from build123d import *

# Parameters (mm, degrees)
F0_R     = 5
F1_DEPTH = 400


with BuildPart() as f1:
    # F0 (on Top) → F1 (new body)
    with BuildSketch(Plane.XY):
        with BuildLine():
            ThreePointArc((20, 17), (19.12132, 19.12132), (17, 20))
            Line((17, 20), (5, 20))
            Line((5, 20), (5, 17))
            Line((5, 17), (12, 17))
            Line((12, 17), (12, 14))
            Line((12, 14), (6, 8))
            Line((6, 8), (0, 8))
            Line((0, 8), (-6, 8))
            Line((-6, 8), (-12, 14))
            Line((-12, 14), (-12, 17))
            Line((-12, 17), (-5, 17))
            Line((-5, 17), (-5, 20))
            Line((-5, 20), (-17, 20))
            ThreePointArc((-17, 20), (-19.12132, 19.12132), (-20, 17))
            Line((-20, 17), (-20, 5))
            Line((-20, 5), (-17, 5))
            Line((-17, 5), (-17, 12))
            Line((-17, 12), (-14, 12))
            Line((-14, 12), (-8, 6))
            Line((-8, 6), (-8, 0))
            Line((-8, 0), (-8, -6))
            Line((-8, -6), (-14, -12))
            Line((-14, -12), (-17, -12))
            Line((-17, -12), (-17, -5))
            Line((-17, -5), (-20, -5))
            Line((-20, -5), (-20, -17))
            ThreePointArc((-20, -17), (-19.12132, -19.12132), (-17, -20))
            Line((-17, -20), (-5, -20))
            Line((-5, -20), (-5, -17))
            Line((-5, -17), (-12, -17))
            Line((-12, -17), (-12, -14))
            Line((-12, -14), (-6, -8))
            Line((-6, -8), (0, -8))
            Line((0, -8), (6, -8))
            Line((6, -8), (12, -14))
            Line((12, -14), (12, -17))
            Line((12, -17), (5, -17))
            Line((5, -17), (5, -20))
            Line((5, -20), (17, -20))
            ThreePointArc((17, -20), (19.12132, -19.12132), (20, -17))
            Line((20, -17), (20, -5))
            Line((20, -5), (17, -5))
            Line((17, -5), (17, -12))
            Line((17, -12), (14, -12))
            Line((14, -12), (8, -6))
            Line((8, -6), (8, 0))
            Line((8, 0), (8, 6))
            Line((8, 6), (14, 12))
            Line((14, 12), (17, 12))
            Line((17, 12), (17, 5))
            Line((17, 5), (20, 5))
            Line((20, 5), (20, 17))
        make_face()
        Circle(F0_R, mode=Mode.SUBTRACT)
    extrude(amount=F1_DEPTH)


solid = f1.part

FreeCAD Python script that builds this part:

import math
import FreeCAD as App
import Part
import Sketcher

doc = App.newDocument("Part")
params = doc.addObject("Spreadsheet::Sheet", "Params")
for row, (alias, value) in enumerate([
    ("sketch1_diameter", "10 mm"),
    ("sketch1_radius", "3.000001 mm"),
    ("sketch1_width", "12 mm"),
    ("sketch1_width2", "7 mm"),
    ("pad1_length", "400 mm"),
], start=1):
    params.set(f"A{row}", alias)
    params.set(f"B{row}", "=" + value)
    params.setAlias(f"B{row}", alias)

body = doc.addObject("PartDesign::Body", "Body")

# Sketch on XY plane
sketch1 = body.newObject("Sketcher::SketchObject", "Sketch")
sketch1.AttachmentSupport = (doc.getObject("XY_Plane"), [""])
sketch1.MapMode = "FlatFace"
sketch1.addGeometry([
    Part.ArcOfCircle(Part.Circle(App.Vector(16.999999, 16.999999, 0), App.Vector(0, 0, 1), 3.000001), math.radians(0.000022), math.radians(89.999978)),  # 0
    Part.LineSegment(App.Vector(17, 20, 0), App.Vector(5, 20, 0)),  # 1
    Part.LineSegment(App.Vector(5, 20, 0), App.Vector(5, 17, 0)),  # 2
    Part.LineSegment(App.Vector(5, 17, 0), App.Vector(12, 17, 0)),  # 3
    Part.LineSegment(App.Vector(12, 17, 0), App.Vector(12, 14, 0)),  # 4
    Part.LineSegment(App.Vector(12, 14, 0), App.Vector(6, 8, 0)),  # 5
    Part.LineSegment(App.Vector(6, 8, 0), App.Vector(-6, 8, 0)),  # 6
    Part.LineSegment(App.Vector(-6, 8, 0), App.Vector(-12, 14, 0)),  # 7
    Part.LineSegment(App.Vector(-12, 14, 0), App.Vector(-12, 17, 0)),  # 8
    Part.LineSegment(App.Vector(-12, 17, 0), App.Vector(-5, 17, 0)),  # 9
    Part.LineSegment(App.Vector(-5, 17, 0), App.Vector(-5, 20, 0)),  # 10
    Part.LineSegment(App.Vector(-5, 20, 0), App.Vector(-17, 20, 0)),  # 11
    Part.ArcOfCircle(Part.Circle(App.Vector(-16.999999, 16.999999, 0), App.Vector(0, 0, 1), 3.000001), math.radians(90.000022), math.radians(179.999978)),  # 12
    Part.LineSegment(App.Vector(-20, 17, 0), App.Vector(-20, 5, 0)),  # 13
    Part.LineSegment(App.Vector(-20, 5, 0), App.Vector(-17, 5, 0)),  # 14
    Part.LineSegment(App.Vector(-17, 5, 0), App.Vector(-17, 12, 0)),  # 15
    Part.LineSegment(App.Vector(-17, 12, 0), App.Vector(-14, 12, 0)),  # 16
    Part.LineSegment(App.Vector(-14, 12, 0), App.Vector(-8, 6, 0)),  # 17
    Part.LineSegment(App.Vector(-8, 6, 0), App.Vector(-8, -6, 0)),  # 18
    Part.LineSegment(App.Vector(-8, -6, 0), App.Vector(-14, -12, 0)),  # 19
    Part.LineSegment(App.Vector(-14, -12, 0), App.Vector(-17, -12, 0)),  # 20
    Part.LineSegment(App.Vector(-17, -12, 0), App.Vector(-17, -5, 0)),  # 21
    Part.LineSegment(App.Vector(-17, -5, 0), App.Vector(-20, -5, 0)),  # 22
    Part.LineSegment(App.Vector(-20, -5, 0), App.Vector(-20, -17, 0)),  # 23
    Part.ArcOfCircle(Part.Circle(App.Vector(-16.999999, -16.999999, 0), App.Vector(0, 0, 1), 3.000001), math.radians(-179.999978), math.radians(-90.000022)),  # 24
    Part.LineSegment(App.Vector(-17, -20, 0), App.Vector(-5, -20, 0)),  # 25
    Part.LineSegment(App.Vector(-5, -20, 0), App.Vector(-5, -17, 0)),  # 26
    Part.LineSegment(App.Vector(-5, -17, 0), App.Vector(-12, -17, 0)),  # 27
    Part.LineSegment(App.Vector(-12, -17, 0), App.Vector(-12, -14, 0)),  # 28
    Part.LineSegment(App.Vector(-12, -14, 0), App.Vector(-6, -8, 0)),  # 29
    Part.LineSegment(App.Vector(-6, -8, 0), App.Vector(6, -8, 0)),  # 30
    Part.LineSegment(App.Vector(6, -8, 0), App.Vector(12, -14, 0)),  # 31
    Part.LineSegment(App.Vector(12, -14, 0), App.Vector(12, -17, 0)),  # 32
    Part.LineSegment(App.Vector(12, -17, 0), App.Vector(5, -17, 0)),  # 33
    Part.LineSegment(App.Vector(5, -17, 0), App.Vector(5, -20, 0)),  # 34
    Part.LineSegment(App.Vector(5, -20, 0), App.Vector(17, -20, 0)),  # 35
    Part.ArcOfCircle(Part.Circle(App.Vector(16.999999, -16.999999, 0), App.Vector(0, 0, 1), 3.000001), math.radians(-89.999978), math.radians(-0.000022)),  # 36
    Part.LineSegment(App.Vector(20, -17, 0), App.Vector(20, -5, 0)),  # 37
    Part.LineSegment(App.Vector(20, -5, 0), App.Vector(17, -5, 0)),  # 38
    Part.LineSegment(App.Vector(17, -5, 0), App.Vector(17, -12, 0)),  # 39
    Part.LineSegment(App.Vector(17, -12, 0), App.Vector(14, -12, 0)),  # 40
    Part.LineSegment(App.Vector(14, -12, 0), App.Vector(8, -6, 0)),  # 41
    Part.LineSegment(App.Vector(8, -6, 0), App.Vector(8, 6, 0)),  # 42
    Part.LineSegment(App.Vector(8, 6, 0), App.Vector(14, 12, 0)),  # 43
    Part.LineSegment(App.Vector(14, 12, 0), App.Vector(17, 12, 0)),  # 44
    Part.LineSegment(App.Vector(17, 12, 0), App.Vector(17, 5, 0)),  # 45
    Part.LineSegment(App.Vector(17, 5, 0), App.Vector(20, 5, 0)),  # 46
    Part.LineSegment(App.Vector(20, 5, 0), App.Vector(20, 17, 0)),  # 47
    Part.Circle(App.Vector(0, 0, 0), App.Vector(0, 0, 1), 5),  # 48
], False)
sketch1.addConstraint([
    Sketcher.Constraint("Tangent", 0, 2, 1, 1),
    Sketcher.Constraint("Coincident", 1, 2, 2, 1),
    Sketcher.Constraint("Coincident", 2, 2, 3, 1),
    Sketcher.Constraint("Coincident", 3, 2, 4, 1),
    Sketcher.Constraint("Coincident", 4, 2, 5, 1),
    Sketcher.Constraint("Coincident", 5, 2, 6, 1),
    Sketcher.Constraint("Coincident", 6, 2, 7, 1),
    Sketcher.Constraint("Coincident", 7, 2, 8, 1),
    Sketcher.Constraint("Coincident", 8, 2, 9, 1),
    Sketcher.Constraint("Coincident", 9, 2, 10, 1),
    Sketcher.Constraint("Coincident", 10, 2, 11, 1),
    Sketcher.Constraint("Tangent", 11, 2, 12, 1),
    Sketcher.Constraint("Tangent", 12, 2, 13, 1),
    Sketcher.Constraint("Coincident", 13, 2, 14, 1),
    Sketcher.Constraint("Coincident", 14, 2, 15, 1),
    Sketcher.Constraint("Coincident", 15, 2, 16, 1),
    Sketcher.Constraint("Coincident", 16, 2, 17, 1),
    Sketcher.Constraint("Coincident", 17, 2, 18, 1),
    Sketcher.Constraint("Coincident", 18, 2, 19, 1),
    Sketcher.Constraint("Coincident", 19, 2, 20, 1),
    Sketcher.Constraint("Coincident", 20, 2, 21, 1),
    Sketcher.Constraint("Coincident", 21, 2, 22, 1),
    Sketcher.Constraint("Coincident", 22, 2, 23, 1),
    Sketcher.Constraint("Tangent", 23, 2, 24, 1),
    Sketcher.Constraint("Tangent", 24, 2, 25, 1),
    Sketcher.Constraint("Coincident", 25, 2, 26, 1),
    Sketcher.Constraint("Coincident", 26, 2, 27, 1),
    Sketcher.Constraint("Coincident", 27, 2, 28, 1),
    Sketcher.Constraint("Coincident", 28, 2, 29, 1),
    Sketcher.Constraint("Coincident", 29, 2, 30, 1),
    Sketcher.Constraint("Coincident", 30, 2, 31, 1),
    Sketcher.Constraint("Coincident", 31, 2, 32, 1),
    Sketcher.Constraint("Coincident", 32, 2, 33, 1),
    Sketcher.Constraint("Coincident", 33, 2, 34, 1),
    Sketcher.Constraint("Coincident", 34, 2, 35, 1),
    Sketcher.Constraint("Tangent", 35, 2, 36, 1),
    Sketcher.Constraint("Tangent", 36, 2, 37, 1),
    Sketcher.Constraint("Coincident", 37, 2, 38, 1),
    Sketcher.Constraint("Coincident", 38, 2, 39, 1),
    Sketcher.Constraint("Coincident", 39, 2, 40, 1),
    Sketcher.Constraint("Coincident", 40, 2, 41, 1),
    Sketcher.Constraint("Coincident", 41, 2, 42, 1),
    Sketcher.Constraint("Coincident", 42, 2, 43, 1),
    Sketcher.Constraint("Coincident", 43, 2, 44, 1),
    Sketcher.Constraint("Coincident", 44, 2, 45, 1),
    Sketcher.Constraint("Coincident", 45, 2, 46, 1),
    Sketcher.Constraint("Coincident", 46, 2, 47, 1),
    Sketcher.Constraint("Tangent", 47, 2, 0, 1),
    Sketcher.Constraint("Horizontal", 1),
    Sketcher.Constraint("Vertical", 2),
    Sketcher.Constraint("Horizontal", 3),
    Sketcher.Constraint("Vertical", 4),
    Sketcher.Constraint("Horizontal", 6),
    Sketcher.Constraint("Vertical", 8),
    Sketcher.Constraint("Horizontal", 9),
    Sketcher.Constraint("Vertical", 10),
    Sketcher.Constraint("Horizontal", 11),
    Sketcher.Constraint("Vertical", 13),
    Sketcher.Constraint("Horizontal", 14),
    Sketcher.Constraint("Vertical", 15),
    Sketcher.Constraint("Horizontal", 16),
    Sketcher.Constraint("Vertical", 18),
    Sketcher.Constraint("Horizontal", 20),
    Sketcher.Constraint("Vertical", 21),
    Sketcher.Constraint("Horizontal", 22),
    Sketcher.Constraint("Vertical", 23),
    Sketcher.Constraint("Horizontal", 25),
    Sketcher.Constraint("Vertical", 26),
    Sketcher.Constraint("Horizontal", 27),
    Sketcher.Constraint("Vertical", 28),
    Sketcher.Constraint("Horizontal", 30),
    Sketcher.Constraint("Vertical", 32),
    Sketcher.Constraint("Horizontal", 33),
    Sketcher.Constraint("Vertical", 34),
    Sketcher.Constraint("Horizontal", 35),
    Sketcher.Constraint("Vertical", 37),
    Sketcher.Constraint("Horizontal", 38),
    Sketcher.Constraint("Vertical", 39),
    Sketcher.Constraint("Horizontal", 40),
    Sketcher.Constraint("Vertical", 42),
    Sketcher.Constraint("Horizontal", 44),
    Sketcher.Constraint("Vertical", 45),
    Sketcher.Constraint("Horizontal", 46),
    Sketcher.Constraint("Vertical", 47),
    Sketcher.Constraint("Coincident", 48, 3, -1, 1),
    Sketcher.Constraint("Equal", 0, 12),
    Sketcher.Constraint("Equal", 12, 24),
    Sketcher.Constraint("Equal", 24, 36),
    Sketcher.Constraint("Symmetric", 0, 3, 24, 3, -1, 1),
    Sketcher.Constraint("Symmetric", 12, 3, 36, 3, -1, 1),
    Sketcher.Constraint("Symmetric", 2, 2, 26, 2, -1, 1),
    Sketcher.Constraint("Symmetric", 4, 2, 28, 2, -1, 1),
    Sketcher.Constraint("Symmetric", 5, 2, 29, 2, -1, 1),
    Sketcher.Constraint("Symmetric", 7, 2, 31, 2, -1, 1),
    Sketcher.Constraint("Symmetric", 9, 2, 33, 2, -1, 1),
    Sketcher.Constraint("Symmetric", 14, 2, 38, 2, -1, 1),
    Sketcher.Constraint("Symmetric", 16, 2, 40, 2, -1, 1),
    Sketcher.Constraint("Symmetric", 17, 2, 41, 2, -1, 1),
    Sketcher.Constraint("Symmetric", 19, 2, 43, 2, -1, 1),
    Sketcher.Constraint("Symmetric", 21, 2, 45, 2, -1, 1),
    Sketcher.Constraint("Symmetric", 0, 3, 12, 3, -2),
    Sketcher.Constraint("Symmetric", 4, 2, 7, 2, -2),
    Sketcher.Constraint("Symmetric", 2, 2, 9, 2, -2),
    Sketcher.Constraint("Symmetric", 21, 2, 38, 2, -2),
    Sketcher.Constraint("Symmetric", 19, 2, 40, 2, -2),
    Sketcher.Constraint("Perpendicular", 5, 7),
    Sketcher.Constraint("Parallel", 7, 17),
    Sketcher.Constraint("Perpendicular", 17, 19),
    Sketcher.Constraint("Perpendicular", 29, 31),
    Sketcher.Constraint("Perpendicular", 41, 43),
    Sketcher.Constraint("Horizontal", 12, 3, 2, 2),
    Sketcher.Constraint("Horizontal", 18, 2, 41, 2),
    Sketcher.Constraint("Vertical", 11, 2, 14, 2),
    Sketcher.Constraint("Equal", 1, 6),
    Sketcher.Constraint("Equal", 14, 16),
    Sketcher.Constraint("Equal", 2, 4),
    Sketcher.Constraint("Equal", 35, 13),
    Sketcher.Constraint("Equal", 33, 15),
    Sketcher.Constraint("Equal", 13, 18),
    Sketcher.Constraint("Equal", 7, 17),
    Sketcher.Constraint("Diameter", 48, 10.0),
    Sketcher.Constraint("Radius", 0, 3.000001),
    Sketcher.Constraint("DistanceX", 1, 2, 1, 1, 12.0),
    Sketcher.Constraint("DistanceX", 3, 1, 3, 2, 7.0),
    Sketcher.Constraint("DistanceX", -1, 1, 0, 3, 16.999999),
])
sketch1.setExpression("Constraints[120]", "Params.sketch1_diameter")
sketch1.setExpression("Constraints[121]", "Params.sketch1_radius")
sketch1.setExpression("Constraints[122]", "Params.sketch1_width")
sketch1.setExpression("Constraints[123]", "Params.sketch1_width2")
pad1 = body.newObject("PartDesign::Pad", "Pad")
pad1.Profile = sketch1
pad1.setExpression("Length", "Params.pad1_length")

doc.recompute()
